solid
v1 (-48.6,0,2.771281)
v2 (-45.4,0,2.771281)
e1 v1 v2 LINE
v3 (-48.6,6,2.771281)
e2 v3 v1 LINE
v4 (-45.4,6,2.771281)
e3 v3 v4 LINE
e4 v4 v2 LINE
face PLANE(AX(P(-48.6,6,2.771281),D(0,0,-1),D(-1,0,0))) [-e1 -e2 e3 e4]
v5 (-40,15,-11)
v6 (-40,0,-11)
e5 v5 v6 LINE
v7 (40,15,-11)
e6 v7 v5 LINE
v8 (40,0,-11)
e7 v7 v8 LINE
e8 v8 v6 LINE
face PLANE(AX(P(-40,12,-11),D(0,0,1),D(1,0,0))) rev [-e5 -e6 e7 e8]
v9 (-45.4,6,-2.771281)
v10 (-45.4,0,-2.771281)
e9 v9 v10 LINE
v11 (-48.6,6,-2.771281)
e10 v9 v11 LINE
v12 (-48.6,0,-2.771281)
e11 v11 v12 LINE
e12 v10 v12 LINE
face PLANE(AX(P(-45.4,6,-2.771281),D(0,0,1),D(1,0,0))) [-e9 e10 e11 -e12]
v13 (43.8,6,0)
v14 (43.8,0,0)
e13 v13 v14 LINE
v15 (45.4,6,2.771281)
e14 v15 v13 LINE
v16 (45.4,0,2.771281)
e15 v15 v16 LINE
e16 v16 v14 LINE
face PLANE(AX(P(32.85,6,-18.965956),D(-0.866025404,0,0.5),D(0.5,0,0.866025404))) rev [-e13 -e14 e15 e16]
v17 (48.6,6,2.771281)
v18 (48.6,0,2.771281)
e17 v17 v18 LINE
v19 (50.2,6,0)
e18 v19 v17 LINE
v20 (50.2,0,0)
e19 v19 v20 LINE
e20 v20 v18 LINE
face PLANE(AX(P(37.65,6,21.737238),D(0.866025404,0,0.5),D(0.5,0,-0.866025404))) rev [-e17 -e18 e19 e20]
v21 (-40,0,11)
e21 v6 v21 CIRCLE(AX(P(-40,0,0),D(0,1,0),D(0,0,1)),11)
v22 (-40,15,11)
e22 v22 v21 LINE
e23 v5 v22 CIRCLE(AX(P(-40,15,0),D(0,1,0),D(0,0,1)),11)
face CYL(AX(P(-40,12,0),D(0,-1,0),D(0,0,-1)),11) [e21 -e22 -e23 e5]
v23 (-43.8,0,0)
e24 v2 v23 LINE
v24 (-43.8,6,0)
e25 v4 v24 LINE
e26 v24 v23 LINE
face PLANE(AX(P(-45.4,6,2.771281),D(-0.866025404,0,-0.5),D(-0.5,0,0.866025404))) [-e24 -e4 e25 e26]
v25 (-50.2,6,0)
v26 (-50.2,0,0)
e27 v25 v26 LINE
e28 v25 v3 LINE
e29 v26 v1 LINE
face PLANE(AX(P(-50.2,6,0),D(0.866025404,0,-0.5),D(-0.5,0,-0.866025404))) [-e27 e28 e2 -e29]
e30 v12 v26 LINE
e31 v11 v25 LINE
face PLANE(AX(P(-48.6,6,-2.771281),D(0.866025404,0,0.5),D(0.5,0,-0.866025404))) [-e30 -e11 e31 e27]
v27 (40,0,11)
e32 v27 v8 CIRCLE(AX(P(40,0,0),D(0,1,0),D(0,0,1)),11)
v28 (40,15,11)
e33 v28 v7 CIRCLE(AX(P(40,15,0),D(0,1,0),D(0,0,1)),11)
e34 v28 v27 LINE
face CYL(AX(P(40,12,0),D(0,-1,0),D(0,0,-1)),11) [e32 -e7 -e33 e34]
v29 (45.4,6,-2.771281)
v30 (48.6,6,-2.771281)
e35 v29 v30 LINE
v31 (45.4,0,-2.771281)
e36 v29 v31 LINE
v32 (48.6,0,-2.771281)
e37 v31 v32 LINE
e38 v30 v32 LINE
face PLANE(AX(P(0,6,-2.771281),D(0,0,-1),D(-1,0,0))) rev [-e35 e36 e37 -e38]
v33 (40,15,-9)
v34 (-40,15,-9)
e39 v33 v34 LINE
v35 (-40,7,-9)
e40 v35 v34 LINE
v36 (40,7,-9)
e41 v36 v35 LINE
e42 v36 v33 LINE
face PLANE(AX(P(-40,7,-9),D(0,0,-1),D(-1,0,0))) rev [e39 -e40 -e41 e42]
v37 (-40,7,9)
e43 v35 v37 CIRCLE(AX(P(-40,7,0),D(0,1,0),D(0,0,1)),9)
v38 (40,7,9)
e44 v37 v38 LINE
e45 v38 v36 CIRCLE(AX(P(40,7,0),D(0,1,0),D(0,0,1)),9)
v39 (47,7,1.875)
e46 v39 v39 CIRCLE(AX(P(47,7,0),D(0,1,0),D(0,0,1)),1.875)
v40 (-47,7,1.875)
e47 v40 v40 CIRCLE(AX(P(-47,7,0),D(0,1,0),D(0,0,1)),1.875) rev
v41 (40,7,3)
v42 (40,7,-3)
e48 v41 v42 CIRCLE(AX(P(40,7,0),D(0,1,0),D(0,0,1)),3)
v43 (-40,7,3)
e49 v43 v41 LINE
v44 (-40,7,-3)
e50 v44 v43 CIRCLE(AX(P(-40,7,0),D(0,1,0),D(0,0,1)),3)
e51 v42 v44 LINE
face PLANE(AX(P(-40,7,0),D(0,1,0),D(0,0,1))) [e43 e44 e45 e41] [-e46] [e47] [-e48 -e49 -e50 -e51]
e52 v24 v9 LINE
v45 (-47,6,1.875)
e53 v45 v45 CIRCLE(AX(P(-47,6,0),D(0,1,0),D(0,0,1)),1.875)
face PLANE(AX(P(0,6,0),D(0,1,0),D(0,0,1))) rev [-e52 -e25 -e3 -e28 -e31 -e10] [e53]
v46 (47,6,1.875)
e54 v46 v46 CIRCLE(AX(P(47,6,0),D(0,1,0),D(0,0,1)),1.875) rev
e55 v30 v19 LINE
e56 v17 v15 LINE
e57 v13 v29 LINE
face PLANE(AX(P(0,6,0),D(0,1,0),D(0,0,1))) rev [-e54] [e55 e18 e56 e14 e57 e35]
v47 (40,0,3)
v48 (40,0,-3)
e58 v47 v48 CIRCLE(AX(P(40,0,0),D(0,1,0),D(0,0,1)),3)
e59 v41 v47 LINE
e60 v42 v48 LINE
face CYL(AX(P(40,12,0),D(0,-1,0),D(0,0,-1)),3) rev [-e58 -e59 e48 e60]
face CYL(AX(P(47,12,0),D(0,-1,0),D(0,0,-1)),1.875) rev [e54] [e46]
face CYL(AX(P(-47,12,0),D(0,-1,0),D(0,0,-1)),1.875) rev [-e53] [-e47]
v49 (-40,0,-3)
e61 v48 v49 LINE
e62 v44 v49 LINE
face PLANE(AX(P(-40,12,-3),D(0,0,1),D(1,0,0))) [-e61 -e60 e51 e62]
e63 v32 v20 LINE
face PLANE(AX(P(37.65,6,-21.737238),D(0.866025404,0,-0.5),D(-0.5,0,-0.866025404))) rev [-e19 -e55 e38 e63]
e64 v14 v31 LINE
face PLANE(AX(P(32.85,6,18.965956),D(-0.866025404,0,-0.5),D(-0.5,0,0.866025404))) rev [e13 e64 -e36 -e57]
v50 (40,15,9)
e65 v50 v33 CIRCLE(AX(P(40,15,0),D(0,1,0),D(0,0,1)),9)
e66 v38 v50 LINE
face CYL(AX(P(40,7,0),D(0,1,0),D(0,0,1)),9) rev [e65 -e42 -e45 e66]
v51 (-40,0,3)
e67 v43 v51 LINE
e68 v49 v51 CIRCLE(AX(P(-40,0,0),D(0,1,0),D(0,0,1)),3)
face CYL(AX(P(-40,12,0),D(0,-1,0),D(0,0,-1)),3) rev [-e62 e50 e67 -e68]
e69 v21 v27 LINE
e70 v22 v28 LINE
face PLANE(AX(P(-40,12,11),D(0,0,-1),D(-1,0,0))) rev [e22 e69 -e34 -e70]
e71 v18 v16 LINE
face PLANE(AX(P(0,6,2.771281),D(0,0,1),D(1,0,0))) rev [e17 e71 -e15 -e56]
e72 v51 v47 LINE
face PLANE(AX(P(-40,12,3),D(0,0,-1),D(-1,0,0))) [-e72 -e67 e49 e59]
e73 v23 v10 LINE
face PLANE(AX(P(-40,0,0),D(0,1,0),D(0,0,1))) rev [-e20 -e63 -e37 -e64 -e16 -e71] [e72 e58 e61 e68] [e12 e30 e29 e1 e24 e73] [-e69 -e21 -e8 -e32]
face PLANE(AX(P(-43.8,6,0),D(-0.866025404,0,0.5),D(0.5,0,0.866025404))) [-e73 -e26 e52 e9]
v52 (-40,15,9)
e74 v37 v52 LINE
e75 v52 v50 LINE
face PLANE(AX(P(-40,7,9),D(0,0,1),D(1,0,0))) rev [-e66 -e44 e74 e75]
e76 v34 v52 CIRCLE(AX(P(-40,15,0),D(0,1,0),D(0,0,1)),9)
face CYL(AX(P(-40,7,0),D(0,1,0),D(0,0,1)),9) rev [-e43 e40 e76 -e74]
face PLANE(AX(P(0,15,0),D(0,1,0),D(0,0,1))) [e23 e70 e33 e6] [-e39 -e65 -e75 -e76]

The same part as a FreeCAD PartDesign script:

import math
import FreeCAD as App
import Part
import Sketcher
from FreeCAD import Vector
Q = App.Units.Quantity


def add_polygon(sketch, points):
    """Adds a closed chain of lines whose ends are joined by coincident constraints."""
    first, n = sketch.GeometryCount, len(points)
    for a, b in zip(points, points[1:] + points[:1]):
        sketch.addGeometry(Part.LineSegment(App.Vector(*a, 0), App.Vector(*b, 0)), False)
    for i in range(n):
        sketch.addConstraint(Sketcher.Constraint("Coincident", first + i, 2, first + (i + 1) % n, 1))

doc = App.newDocument("Part")
body = doc.addObject("PartDesign::Body", "Body")

# Sketch on XZ plane
sketch1 = body.newObject("Sketcher::SketchObject", "Sketch")
sketch1.AttachmentSupport = (doc.getObject("XZ_Plane"), [""])
sketch1.MapMode = "FlatFace"
sketch1.addGeometry([
    Part.LineSegment(Vector(40, -11, 0), Vector(-40, -11, 0)),  # 0
    Part.ArcOfCircle(Part.Circle(Vector(-40, 0, 0), Vector(0, 0, 1), 11), math.radians(90), math.radians(270)),  # 1
    Part.LineSegment(Vector(-40, 11, 0), Vector(40, 11, 0)),  # 2
    Part.ArcOfCircle(Part.Circle(Vector(40, 0, 0), Vector(0, 0, 1), 11), math.radians(-90), math.radians(90)),  # 3
    Part.LineSegment(Vector(-40, -3, 0), Vector(40, -3, 0)),  # 4
    Part.ArcOfCircle(Part.Circle(Vector(40, 0, 0), Vector(0, 0, 1), 3), math.radians(-90), math.radians(90)),  # 5
    Part.LineSegment(Vector(40, 3, 0), Vector(-40, 3, 0)),  # 6
    Part.ArcOfCircle(Part.Circle(Vector(-40, 0, 0), Vector(0, 0, 1), 3), math.radians(90), math.radians(270)),  # 7
], False)
sketch1.addConstraint([
    Sketcher.Constraint("Tangent", 0, 2, 1, 2),
    Sketcher.Constraint("Tangent", 1, 1, 2, 1),
    Sketcher.Constraint("Tangent", 2, 2, 3, 2),
    Sketcher.Constraint("Tangent", 3, 1, 0, 1),
    Sketcher.Constraint("Tangent", 4, 2, 5, 1),
    Sketcher.Constraint("Tangent", 5, 2, 6, 1),
    Sketcher.Constraint("Tangent", 6, 2, 7, 1),
    Sketcher.Constraint("Tangent", 7, 2, 4, 1),
    Sketcher.Constraint("Horizontal", 0),
    Sketcher.Constraint("Horizontal", 2),
    Sketcher.Constraint("Horizontal", 4),
    Sketcher.Constraint("Horizontal", 6),
    Sketcher.Constraint("Coincident", 5, 3, 3, 3),
    Sketcher.Constraint("Symmetric", 1, 3, 3, 3, -1, 1),
    Sketcher.Constraint("Vertical", 7, 3, 0, 2),
    Sketcher.Constraint("Radius", 1, 11.0),
    Sketcher.Constraint("Radius", 5, 3.0),
    Sketcher.Constraint("DistanceX", 0, 2, 0, 1, 80.0),
])
pad1 = body.newObject("PartDesign::Pad", "Pad")
pad1.Profile = sketch1
pad1.Length = 12
pad1.Reversed = True

# Sketch on XZ plane
sketch2 = body.newObject("Sketcher::SketchObject", "Sketch001")
sketch2.AttachmentSupport = (doc.getObject("XZ_Plane"), [""])
sketch2.MapMode = "FlatFace"
add_polygon(sketch2, [(43.8, 0), (45.4, 2.8), (48.6, 2.8), (50.2, 0), (48.6, -2.8), (45.4, -2.8)])  # lines 0-5
add_polygon(sketch2, [(-45.4, -2.8), (-48.6, -2.8), (-50.2, 0), (-48.6, 2.8), (-45.4, 2.8), (-43.8, 0)])  # lines 6-11
sketch2.addConstraint([
    Sketcher.Constraint("Horizontal", 1),
    Sketcher.Constraint("Horizontal", 4),
    Sketcher.Constraint("Horizontal", 6),
    Sketcher.Constraint("Horizontal", 9),
    Sketcher.Constraint("Symmetric", 1, 2, 6, 2, -1, 1),
    Sketcher.Constraint("Symmetric", 2, 2, 7, 2, -1, 1),
    Sketcher.Constraint("Symmetric", 3, 2, 8, 2, -1, 1),
    Sketcher.Constraint("Symmetric", 5, 2, 10, 2, -1, 1),
    Sketcher.Constraint("Symmetric", 3, 2, 6, 2, -2),
    Sketcher.Constraint("PointOnObject", 2, 2, -1),
    Sketcher.Constraint("PointOnObject", 5, 2, -1),
    Sketcher.Constraint("Parallel", 0, 3),
    Sketcher.Constraint("Parallel", 2, 5),
    Sketcher.Constraint("Parallel", 7, 10),
    Sketcher.Constraint("Parallel", 8, 11),
    Sketcher.Constraint("Angle", 0, Q("60 deg")),
    Sketcher.Constraint("DistanceX", 1, 1, 1, 2, 3.2),
    Sketcher.Constraint("DistanceX", 6, 2, 4, 2, 94.0),
    Sketcher.Constraint("Distance", 0, 3.2),
])
pocket1 = body.newObject("PartDesign::Pocket", "Pocket")
pocket1.Profile = sketch2
pocket1.Length = 6

# Sketch on XZ plane
sketch3 = body.newObject("Sketcher::SketchObject", "Sketch002")
sketch3.AttachmentSupport = (doc.getObject("XZ_Plane"), [""])
sketch3.MapMode = "FlatFace"
sketch3.AttachmentOffset = App.Placement(Vector(0, 0, -6), App.Rotation())
sketch3.addGeometry([
    Part.Circle(Vector(-47, 0, 0), Vector(0, 0, 1), 1.9),
    Part.Circle(Vector(47, 0, 0), Vector(0, 0, 1), 1.9),
], False)
sketch3.addConstraint([
    Sketcher.Constraint("Equal", 0, 1),
    Sketcher.Constraint("Symmetric", 0, 3, 1, 3, -1, 1),
    Sketcher.Constraint("PointOnObject", 0, 3, -1),
    Sketcher.Constraint("Diameter", 0, 3.75),
    Sketcher.Constraint("DistanceX", 0, 3, -1, 1, 47.0),
])
pocket2 = body.newObject("PartDesign::Pocket", "Pocket001")
pocket2.Profile = sketch3
pocket2.Type = "ThroughAll"
pocket2.Midplane = True

# Sketch on XZ plane
sketch4 = body.newObject("Sketcher::SketchObject", "Sketch003")
sketch4.AttachmentSupport = (doc.getObject("XZ_Plane"), [""])
sketch4.MapMode = "FlatFace"
sketch4.AttachmentOffset = App.Placement(Vector(0, 0, -12), App.Rotation())
sketch4.addGeometry([
    Part.LineSegment(Vector(40, -11, 0), Vector(-40, -11, 0)),  # 0
    Part.ArcOfCircle(Part.Circle(Vector(-40, 0, 0), Vector(0, 0, 1), 11), math.radians(90), math.radians(270)),  # 1
    Part.LineSegment(Vector(-40, 11, 0), Vector(40, 11, 0)),  # 2
    Part.ArcOfCircle(Part.Circle(Vector(40, 0, 0), Vector(0, 0, 1), 11), math.radians(-90), math.radians(90)),  # 3
    Part.Circle(Vector(-47, 0, 0), Vector(0, 0, 1), 1.9),  # 4
    Part.LineSegment(Vector(-40, -3, 0), Vector(40, -3, 0)),  # 5
    Part.ArcOfCircle(Part.Circle(Vector(40, 0, 0), Vector(0, 0, 1), 3), math.radians(-90), math.radians(90)),  # 6
    Part.LineSegment(Vector(40, 3, 0), Vector(-40, 3, 0)),  # 7
    Part.ArcOfCircle(Part.Circle(Vector(-40, 0, 0), Vector(0, 0, 1), 3), math.radians(90), math.radians(270)),  # 8
    Part.Circle(Vector(47, 0, 0), Vector(0, 0, 1), 1.9),  # 9
], False)
sketch4.addConstraint([
    Sketcher.Constraint("Tangent", 0, 2, 1, 2),
    Sketcher.Constraint("Tangent", 1, 1, 2, 1),
    Sketcher.Constraint("Tangent", 2, 2, 3, 2),
    Sketcher.Constraint("Tangent", 3, 1, 0, 1),
    Sketcher.Constraint("Tangent", 5, 2, 6, 1),
    Sketcher.Constraint("Tangent", 6, 2, 7, 1),
    Sketcher.Constraint("Tangent", 7, 2, 8, 1),
    Sketcher.Constraint("Tangent", 8, 2, 5, 1),
    Sketcher.Constraint("Horizontal", 0),
    Sketcher.Constraint("Horizontal", 2),
    Sketcher.Constraint("Horizontal", 5),
    Sketcher.Constraint("Horizontal", 7),
    Sketcher.Constraint("Coincident", 6, 3, 3, 3),
    Sketcher.Constraint("Equal", 4, 9),
    Sketcher.Constraint("Symmetric", 1, 3, 3, 3, -1, 1),
    Sketcher.Constraint("Symmetric", 4, 3, 9, 3, -1, 1),
    Sketcher.Constraint("PointOnObject", 4, 3, -1),
    Sketcher.Constraint("Vertical", 8, 3, 0, 2),
    Sketcher.Constraint("Radius", 1, 11.0),
    Sketcher.Constraint("Radius", 6, 3.0),
    Sketcher.Constraint("Diameter", 4, 3.75),
    Sketcher.Constraint("DistanceX", 0, 2, 0, 1, 80.0),
    Sketcher.Constraint("DistanceX", 4, 3, -1, 1, 47.0),
])
pad2 = body.newObject("PartDesign::Pad", "Pad001")
pad2.Profile = sketch4
pad2.Length = 3
pad2.Reversed = True

# Sketch on XZ plane
sketch5 = body.newObject("Sketcher::SketchObject", "Sketch004")
sketch5.AttachmentSupport = (doc.getObject("XZ_Plane"), [""])
sketch5.MapMode = "FlatFace"
sketch5.AttachmentOffset = App.Placement(Vector(0, 0, -15), App.Rotation())
sketch5.addGeometry([
    Part.LineSegment(Vector(40, -9, 0), Vector(-40, -9, 0)),
    Part.ArcOfCircle(Part.Circle(Vector(-40, 0, 0), Vector(0, 0, 1), 9), math.radians(90), math.radians(270)),
    Part.LineSegment(Vector(-40, 9, 0), Vector(40, 9, 0)),
    Part.ArcOfCircle(Part.Circle(Vector(40, 0, 0), Vector(0, 0, 1), 9), math.radians(-90), math.radians(90)),
], False)
sketch5.addConstraint([
    Sketcher.Constraint("Tangent", 0, 2, 1, 2),
    Sketcher.Constraint("Tangent", 1, 1, 2, 1),
    Sketcher.Constraint("Tangent", 2, 2, 3, 2),
    Sketcher.Constraint("Tangent", 3, 1, 0, 1),
    Sketcher.Constraint("Horizontal", 0),
    Sketcher.Constraint("Horizontal", 2),
    Sketcher.Constraint("Symmetric", 1, 3, 3, 3, -1, 1),
    Sketcher.Constraint("Radius", 1, 9.0),
    Sketcher.Constraint("DistanceX", 0, 2, 0, 1, 80.0),
])
pocket3 = body.newObject("PartDesign::Pocket", "Pocket002")
pocket3.Profile = sketch5
pocket3.Length = 8
pocket3.Reversed = True

doc.recompute()
